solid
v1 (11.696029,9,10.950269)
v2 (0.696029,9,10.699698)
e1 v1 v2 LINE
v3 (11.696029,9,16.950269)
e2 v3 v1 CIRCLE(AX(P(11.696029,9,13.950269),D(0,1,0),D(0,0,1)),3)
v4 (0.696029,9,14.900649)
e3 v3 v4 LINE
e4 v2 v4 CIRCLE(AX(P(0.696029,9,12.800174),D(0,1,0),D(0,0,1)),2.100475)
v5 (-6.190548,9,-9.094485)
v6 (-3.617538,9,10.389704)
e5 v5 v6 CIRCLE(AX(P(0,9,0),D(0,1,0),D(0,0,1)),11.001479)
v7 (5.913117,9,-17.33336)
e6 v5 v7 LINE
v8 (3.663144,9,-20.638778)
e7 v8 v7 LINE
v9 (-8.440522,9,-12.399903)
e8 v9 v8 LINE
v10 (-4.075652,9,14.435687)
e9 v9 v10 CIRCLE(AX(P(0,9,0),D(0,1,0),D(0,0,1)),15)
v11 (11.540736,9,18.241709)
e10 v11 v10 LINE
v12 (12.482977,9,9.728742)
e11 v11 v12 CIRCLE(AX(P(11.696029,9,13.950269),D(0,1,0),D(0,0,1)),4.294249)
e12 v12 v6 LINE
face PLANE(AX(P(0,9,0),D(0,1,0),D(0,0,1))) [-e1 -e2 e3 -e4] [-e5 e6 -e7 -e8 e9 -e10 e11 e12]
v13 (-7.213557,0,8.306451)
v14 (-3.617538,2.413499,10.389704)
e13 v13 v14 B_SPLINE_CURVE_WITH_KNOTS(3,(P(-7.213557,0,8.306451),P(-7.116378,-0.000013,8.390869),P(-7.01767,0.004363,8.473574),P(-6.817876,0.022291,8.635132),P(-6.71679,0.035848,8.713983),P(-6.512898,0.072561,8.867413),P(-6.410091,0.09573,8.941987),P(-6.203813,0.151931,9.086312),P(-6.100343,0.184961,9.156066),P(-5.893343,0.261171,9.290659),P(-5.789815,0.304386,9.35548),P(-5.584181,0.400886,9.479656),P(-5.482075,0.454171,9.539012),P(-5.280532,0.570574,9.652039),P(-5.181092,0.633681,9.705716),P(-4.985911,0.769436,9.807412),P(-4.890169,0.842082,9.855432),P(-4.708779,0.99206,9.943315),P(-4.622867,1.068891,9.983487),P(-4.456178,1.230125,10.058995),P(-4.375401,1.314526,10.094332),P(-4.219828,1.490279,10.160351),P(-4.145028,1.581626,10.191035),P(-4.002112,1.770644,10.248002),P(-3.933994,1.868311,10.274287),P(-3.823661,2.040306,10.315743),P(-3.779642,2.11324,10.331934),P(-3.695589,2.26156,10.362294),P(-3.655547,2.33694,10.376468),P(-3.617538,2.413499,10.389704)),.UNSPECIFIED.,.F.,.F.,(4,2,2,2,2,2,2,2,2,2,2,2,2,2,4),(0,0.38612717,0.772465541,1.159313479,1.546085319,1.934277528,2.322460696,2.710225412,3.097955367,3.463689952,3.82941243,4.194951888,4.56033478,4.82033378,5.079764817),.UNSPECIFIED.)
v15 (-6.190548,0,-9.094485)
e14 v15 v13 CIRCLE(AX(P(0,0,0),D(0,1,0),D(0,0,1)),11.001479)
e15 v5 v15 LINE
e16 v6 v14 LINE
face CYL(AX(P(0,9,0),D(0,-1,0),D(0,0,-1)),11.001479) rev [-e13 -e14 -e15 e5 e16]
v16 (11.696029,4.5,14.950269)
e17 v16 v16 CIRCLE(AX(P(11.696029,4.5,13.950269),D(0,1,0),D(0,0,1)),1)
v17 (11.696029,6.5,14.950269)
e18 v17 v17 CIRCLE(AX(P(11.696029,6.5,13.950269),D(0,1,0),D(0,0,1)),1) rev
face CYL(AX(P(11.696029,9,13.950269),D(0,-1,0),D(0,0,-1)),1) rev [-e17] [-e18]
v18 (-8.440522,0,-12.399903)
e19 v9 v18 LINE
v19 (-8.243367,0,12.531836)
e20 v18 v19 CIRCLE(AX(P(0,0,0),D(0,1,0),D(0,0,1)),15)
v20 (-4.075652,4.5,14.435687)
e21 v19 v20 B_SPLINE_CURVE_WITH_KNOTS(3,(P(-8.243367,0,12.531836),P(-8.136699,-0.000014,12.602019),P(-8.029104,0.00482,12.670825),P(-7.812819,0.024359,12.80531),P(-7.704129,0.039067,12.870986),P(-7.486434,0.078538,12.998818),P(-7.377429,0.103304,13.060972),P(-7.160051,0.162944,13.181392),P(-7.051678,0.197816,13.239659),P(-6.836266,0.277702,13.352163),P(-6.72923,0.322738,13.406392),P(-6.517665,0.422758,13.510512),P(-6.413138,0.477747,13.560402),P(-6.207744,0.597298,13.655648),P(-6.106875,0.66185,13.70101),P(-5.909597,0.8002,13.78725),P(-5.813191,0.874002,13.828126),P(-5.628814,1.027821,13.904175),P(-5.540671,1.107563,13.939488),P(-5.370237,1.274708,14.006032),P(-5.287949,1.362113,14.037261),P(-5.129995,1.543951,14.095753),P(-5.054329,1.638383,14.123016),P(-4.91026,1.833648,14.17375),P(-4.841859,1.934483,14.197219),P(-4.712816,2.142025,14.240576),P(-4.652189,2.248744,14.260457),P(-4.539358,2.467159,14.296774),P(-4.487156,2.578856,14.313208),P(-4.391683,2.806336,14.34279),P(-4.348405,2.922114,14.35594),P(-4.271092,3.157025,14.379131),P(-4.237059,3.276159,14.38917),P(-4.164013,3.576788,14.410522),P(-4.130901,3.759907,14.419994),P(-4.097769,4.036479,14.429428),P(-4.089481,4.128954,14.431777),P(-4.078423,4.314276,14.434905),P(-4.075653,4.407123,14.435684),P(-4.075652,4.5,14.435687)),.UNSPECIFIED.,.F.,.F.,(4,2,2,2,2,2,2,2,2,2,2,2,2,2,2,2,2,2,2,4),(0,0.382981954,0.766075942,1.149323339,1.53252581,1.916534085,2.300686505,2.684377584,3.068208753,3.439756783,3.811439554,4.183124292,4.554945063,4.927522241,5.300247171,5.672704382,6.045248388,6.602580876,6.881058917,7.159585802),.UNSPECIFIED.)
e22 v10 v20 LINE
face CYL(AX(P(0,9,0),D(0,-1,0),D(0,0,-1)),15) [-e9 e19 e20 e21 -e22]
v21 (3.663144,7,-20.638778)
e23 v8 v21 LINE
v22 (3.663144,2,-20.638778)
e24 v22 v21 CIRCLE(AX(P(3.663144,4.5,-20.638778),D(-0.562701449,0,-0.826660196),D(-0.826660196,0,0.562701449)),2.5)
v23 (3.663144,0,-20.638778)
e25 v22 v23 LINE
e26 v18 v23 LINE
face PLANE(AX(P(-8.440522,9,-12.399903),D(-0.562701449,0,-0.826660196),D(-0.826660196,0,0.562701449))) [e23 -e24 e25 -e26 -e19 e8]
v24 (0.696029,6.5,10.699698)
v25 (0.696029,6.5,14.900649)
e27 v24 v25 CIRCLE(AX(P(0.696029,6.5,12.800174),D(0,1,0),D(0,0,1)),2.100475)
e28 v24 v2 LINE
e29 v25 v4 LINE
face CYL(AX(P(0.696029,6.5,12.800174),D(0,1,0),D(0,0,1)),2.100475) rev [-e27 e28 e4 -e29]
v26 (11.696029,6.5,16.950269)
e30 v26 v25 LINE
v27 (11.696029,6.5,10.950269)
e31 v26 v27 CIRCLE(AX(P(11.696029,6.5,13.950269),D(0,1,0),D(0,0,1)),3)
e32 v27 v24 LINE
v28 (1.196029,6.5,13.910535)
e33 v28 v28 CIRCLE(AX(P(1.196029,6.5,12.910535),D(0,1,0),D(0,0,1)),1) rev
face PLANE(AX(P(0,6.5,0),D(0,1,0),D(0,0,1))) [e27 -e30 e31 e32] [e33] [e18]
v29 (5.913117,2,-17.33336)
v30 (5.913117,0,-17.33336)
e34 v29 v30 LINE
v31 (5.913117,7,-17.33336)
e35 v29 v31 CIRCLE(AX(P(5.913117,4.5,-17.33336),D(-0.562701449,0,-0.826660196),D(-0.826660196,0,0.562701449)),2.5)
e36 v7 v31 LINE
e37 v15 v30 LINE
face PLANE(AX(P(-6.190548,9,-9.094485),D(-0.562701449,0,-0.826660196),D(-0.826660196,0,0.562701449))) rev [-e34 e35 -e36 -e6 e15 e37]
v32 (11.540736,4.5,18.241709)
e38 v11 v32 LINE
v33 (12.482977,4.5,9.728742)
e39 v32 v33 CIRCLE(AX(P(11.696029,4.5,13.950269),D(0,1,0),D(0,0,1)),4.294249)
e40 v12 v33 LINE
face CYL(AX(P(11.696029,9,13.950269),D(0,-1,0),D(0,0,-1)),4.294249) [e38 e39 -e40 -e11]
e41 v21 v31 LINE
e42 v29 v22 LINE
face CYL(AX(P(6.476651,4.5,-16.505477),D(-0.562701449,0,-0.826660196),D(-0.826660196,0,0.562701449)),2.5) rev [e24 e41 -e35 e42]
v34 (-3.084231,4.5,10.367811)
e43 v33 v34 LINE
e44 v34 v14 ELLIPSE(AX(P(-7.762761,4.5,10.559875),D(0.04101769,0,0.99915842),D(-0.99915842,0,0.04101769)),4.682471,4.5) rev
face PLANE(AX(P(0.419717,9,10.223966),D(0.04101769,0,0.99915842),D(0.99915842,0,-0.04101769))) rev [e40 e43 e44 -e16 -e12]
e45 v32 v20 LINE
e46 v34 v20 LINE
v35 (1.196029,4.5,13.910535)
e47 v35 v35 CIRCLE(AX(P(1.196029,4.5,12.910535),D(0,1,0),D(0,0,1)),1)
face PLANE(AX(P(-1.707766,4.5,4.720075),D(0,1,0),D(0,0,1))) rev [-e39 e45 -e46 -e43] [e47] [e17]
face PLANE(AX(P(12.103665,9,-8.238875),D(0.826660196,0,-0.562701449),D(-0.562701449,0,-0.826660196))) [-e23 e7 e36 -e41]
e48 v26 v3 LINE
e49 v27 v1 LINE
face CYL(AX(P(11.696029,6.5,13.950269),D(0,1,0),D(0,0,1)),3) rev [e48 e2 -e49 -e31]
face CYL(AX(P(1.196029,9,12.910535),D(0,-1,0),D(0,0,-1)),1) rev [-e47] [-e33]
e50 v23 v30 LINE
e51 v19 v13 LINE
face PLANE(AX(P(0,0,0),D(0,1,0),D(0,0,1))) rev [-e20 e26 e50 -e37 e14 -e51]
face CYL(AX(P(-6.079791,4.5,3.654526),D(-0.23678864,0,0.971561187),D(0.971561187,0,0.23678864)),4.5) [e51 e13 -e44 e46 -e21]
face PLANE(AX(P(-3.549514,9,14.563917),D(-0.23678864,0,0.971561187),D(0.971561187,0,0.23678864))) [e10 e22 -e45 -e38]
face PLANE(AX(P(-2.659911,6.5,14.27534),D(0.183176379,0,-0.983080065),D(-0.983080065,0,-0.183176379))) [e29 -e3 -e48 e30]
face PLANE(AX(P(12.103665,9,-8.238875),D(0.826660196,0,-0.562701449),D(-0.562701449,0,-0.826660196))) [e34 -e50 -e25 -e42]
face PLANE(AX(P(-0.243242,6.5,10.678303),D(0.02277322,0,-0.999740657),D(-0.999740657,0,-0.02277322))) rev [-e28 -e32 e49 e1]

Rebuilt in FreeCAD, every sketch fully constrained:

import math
import FreeCAD as App
import Part
import Sketcher

doc = App.newDocument("Part")
params = doc.addObject("Spreadsheet::Sheet", "Params")
for row, (alias, value) in enumerate([
    ("sketch1_diameter", "2 mm"),
    ("sketch1_radius", "15 mm"),
    ("pad1_length", "9 mm"),
    ("sketch2_diameter", "2 mm"),
    ("sketch2_radius", "3 mm"),
    ("pocket1_length", "2.5 mm"),
    ("sketch3_diameter", "5 mm"),
    ("pocket2_length", "5 mm"),
    ("sketch4_radius", "4.5 mm"),
    ("pocket3_length", "10 mm"),
], start=1):
    params.set(f"A{row}", alias)
    params.set(f"B{row}", "=" + value)
    params.setAlias(f"B{row}", alias)

body = doc.addObject("PartDesign::Body", "Body")

sketch1 = doc.addObject("Sketcher::SketchObject", "Sketch")
body.addObject(sketch1)
sketch1.AttachmentSupport = (doc.XZ_Plane, [""])
sketch1.MapMode = "FlatFace"
sketch1.addGeometry(Part.LineSegment(App.Vector(3.7, -20.6, 0), App.Vector(-8.4, -12.4, 0)), False)
sketch1.addGeometry(Part.ArcOfCircle(Part.Circle(App.Vector(0, 0, 0), App.Vector(0, 0, 1), 15), math.radians(106), math.radians(236)), False)
sketch1.addGeometry(Part.LineSegment(App.Vector(-4.1, 14.4, 0), App.Vector(-3, 14.7, 0)), False)
sketch1.addGeometry(Part.LineSegment(App.Vector(-3, 14.7, 0), App.Vector(11.5, 18.2, 0)), False)
sketch1.addGeometry(Part.ArcOfCircle(Part.Circle(App.Vector(11.7, 14, 0), App.Vector(0, 0, 1), 4.3), math.radians(-79), math.radians(92)), False)
sketch1.addGeometry(Part.LineSegment(App.Vector(12.5, 9.7, 0), App.Vector(-3.6, 10.4, 0)), False)
sketch1.addGeometry(Part.ArcOfCircle(Part.Circle(App.Vector(0, 0, 0), App.Vector(0, 0, 1), 11), math.radians(109), math.radians(236)), False)
sketch1.addGeometry(Part.LineSegment(App.Vector(-6.2, -9.1, 0), App.Vector(5.9, -17.3, 0)), False)
sketch1.addGeometry(Part.LineSegment(App.Vector(5.9, -17.3, 0), App.Vector(3.7, -20.6, 0)), False)
sketch1.addGeometry(Part.Circle(App.Vector(11.7, 14, 0), App.Vector(0, 0, 1), 1), False)
sketch1.addGeometry(Part.Circle(App.Vector(1.2, 12.9, 0), App.Vector(0, 0, 1), 1), False)
sketch1.addConstraint(Sketcher.Constraint("Tangent", 0, 2, 1, 2))
sketch1.addConstraint(Sketcher.Constraint("Coincident", 1, 1, 2, 1))
sketch1.addConstraint(Sketcher.Constraint("Coincident", 2, 2, 3, 1))
sketch1.addConstraint(Sketcher.Constraint("Coincident", 3, 2, 4, 2))
sketch1.addConstraint(Sketcher.Constraint("Coincident", 4, 1, 5, 1))
sketch1.addConstraint(Sketcher.Constraint("Coincident", 5, 2, 6, 1))
sketch1.addConstraint(Sketcher.Constraint("Tangent", 6, 2, 7, 1))
sketch1.addConstraint(Sketcher.Constraint("Coincident", 7, 2, 8, 1))
sketch1.addConstraint(Sketcher.Constraint("Coincident", 8, 2, 0, 1))
sketch1.addConstraint(Sketcher.Constraint("Coincident", 1, 3, -1, 1))
sketch1.addConstraint(Sketcher.Constraint("Coincident", 6, 3, -1, 1))
sketch1.addConstraint(Sketcher.Constraint("Coincident", 9, 3, 4, 3))
sketch1.addConstraint(Sketcher.Constraint("Equal", 9, 10))
sketch1.addConstraint(Sketcher.Constraint("Parallel", 2, 3))
sketch1.addConstraint(Sketcher.Constraint("Parallel", 0, 7))
sketch1.addConstraint(Sketcher.Constraint("Perpendicular", 7, 8))
sketch1.addConstraint(Sketcher.Constraint("Diameter", 9, 2.0))
sketch1.addConstraint(Sketcher.Constraint("Radius", 1, 15.0))
sketch1.addConstraint(Sketcher.Constraint("DistanceX", 10, 3, 4, 3, 10.5))
sketch1.addConstraint(Sketcher.Constraint("Radius", 4, 4.294249))
sketch1.addConstraint(Sketcher.Constraint("Radius", 6, 11.001479))
sketch1.addConstraint(Sketcher.Constraint("DistanceY", 7, 2, 4, 1, 27.062102))
sketch1.addConstraint(Sketcher.Constraint("DistanceX", -1, 1, 4, 3, 11.696029))
sketch1.addConstraint(Sketcher.Constraint("DistanceY", -1, 1, 4, 3, 13.950269))
sketch1.addConstraint(Sketcher.Constraint("DistanceX", 0, 2, -1, 1, 8.440522))
sketch1.addConstraint(Sketcher.Constraint("DistanceY", -1, 1, 3, 2, 18.241709))
sketch1.addConstraint(Sketcher.Constraint("DistanceY", 7, 2, -1, 1, 17.33336))
sketch1.addConstraint(Sketcher.Constraint("DistanceX", 1, 1, 10, 3, 5.271681))
sketch1.addConstraint(Sketcher.Constraint("DistanceY", 1, 1, 2, 2, 0.25646))
sketch1.addConstraint(Sketcher.Constraint("DistanceX", 5, 2, 2, 2, 0.594162))
sketch1.addConstraint(Sketcher.Constraint("DistanceY", 5, 2, 10, 3, 2.520831))
sketch1.setExpression("Constraints[16]", "Params.sketch1_diameter")
sketch1.setExpression("Constraints[17]", "Params.sketch1_radius")
pad1 = doc.addObject("PartDesign::Pad", "Pad")
body.addObject(pad1)
pad1.Profile = sketch1
pad1.setExpression("Length", "Params.pad1_length")
pad1.Reversed = True

sketch2 = doc.addObject("Sketcher::SketchObject", "Sketch001")
body.addObject(sketch2)
sketch2.AttachmentSupport = (doc.XZ_Plane, [""])
sketch2.MapMode = "FlatFace"
sketch2.AttachmentOffset = App.Placement(App.Vector(0, 0, -9), App.Rotation())
sketch2.addGeometry(Part.ArcOfCircle(Part.Circle(App.Vector(11.7, 13.95, 0), App.Vector(0, 0, 1), 3), math.radians(-90), math.radians(90)), False)
sketch2.addGeometry(Part.LineSegment(App.Vector(11.7, 10.95, 0), App.Vector(0.79, 10.7, 0)), False)
sketch2.addGeometry(Part.LineSegment(App.Vector(0.79, 10.7, 0), App.Vector(0.7, 10.7, 0)), False)
sketch2.addGeometry(Part.ArcOfCircle(Part.Circle(App.Vector(0.7, 12.8, 0), App.Vector(0, 0, 1), 2.1), math.radians(90), math.radians(270)), False)
sketch2.addGeometry(Part.LineSegment(App.Vector(0.7, 14.9, 0), App.Vector(11.7, 16.95, 0)), False)
sketch2.addGeometry(Part.Circle(App.Vector(11.7, 13.95, 0), App.Vector(0, 0, 1), 1), False)
sketch2.addGeometry(Part.Circle(App.Vector(1.2, 12.91, 0), App.Vector(0, 0, 1), 1), False)
sketch2.addConstraint(Sketcher.Constraint("Coincident", 0, 1, 1, 1))
sketch2.addConstraint(Sketcher.Constraint("Coincident", 1, 2, 2, 1))
sketch2.addConstraint(Sketcher.Constraint("Coincident", 2, 2, 3, 2))
sketch2.addConstraint(Sketcher.Constraint("Coincident", 3, 1, 4, 1))
sketch2.addConstraint(Sketcher.Constraint("Coincident", 4, 2, 0, 2))
sketch2.addConstraint(Sketcher.Constraint("Coincident", 5, 3, 0, 3))
sketch2.addConstraint(Sketcher.Constraint("Equal", 5, 6))
sketch2.addConstraint(Sketcher.Constraint("Parallel", 1, 2))
sketch2.addConstraint(Sketcher.Constraint("Vertical", 5, 3, 0, 1))
sketch2.addConstraint(Sketcher.Constraint("Vertical", 3, 3, 2, 2))
sketch2.addConstraint(Sketcher.Constraint("Vertical", 2, 2, 3, 1))
sketch2.addConstraint(Sketcher.Constraint("Vertical", 0, 1, 4, 2))
sketch2.addConstraint(Sketcher.Constraint("Diameter", 5, 2.0))
sketch2.addConstraint(Sketcher.Constraint("Radius", 0, 3.0))
sketch2.addConstraint(Sketcher.Constraint("DistanceX", 3, 3, 0, 3, 11.0))
sketch2.addConstraint(Sketcher.Constraint("DistanceX", 3, 3, 6, 3, 0.5))
sketch2.addConstraint(Sketcher.Constraint("Radius", 3, 2.100475))
sketch2.addConstraint(Sketcher.Constraint("DistanceY", -1, 1, 2, 2, 10.699698))
sketch2.addConstraint(Sketcher.Constraint("Distance", 2, 0.095669))
sketch2.addConstraint(Sketcher.Constraint("DistanceX", -1, 1, 0, 3, 11.696029))
sketch2.addConstraint(Sketcher.Constraint("DistanceY", -1, 1, 0, 3, 13.950269))
sketch2.addConstraint(Sketcher.Constraint("DistanceY", 3, 3, 6, 3, 0.110361))
sketch2.setExpression("Constraints[12]", "Params.sketch2_diameter")
sketch2.setExpression("Constraints[13]", "Params.sketch2_radius")
pocket1 = doc.addObject("PartDesign::Pocket", "Pocket")
body.addObject(pocket1)
pocket1.Profile = sketch2
pocket1.setExpression("Length", "Params.pocket1_length")
pocket1.Reversed = True

sketch3 = doc.addObject("Sketcher::SketchObject", "Sketch002")
body.addObject(sketch3)
sketch3.Placement = App.Placement(App.Vector(-8.440522, 0, -12.399903), App.Rotation(App.Vector(-0.826660196, 0, 0.562701449), App.Vector(0, 1, 0), App.Vector(-0.562701449, 0, -0.826660196), "ZXY"))
sketch3.addGeometry(Part.Circle(App.Vector(-14.6, 4.5, 0), App.Vector(0, 0, 1), 2.5), False)
sketch3.addConstraint(Sketcher.Constraint("Diameter", 0, 5.0))
sketch3.addConstraint(Sketcher.Constraint("DistanceY", -1, 1, 0, 3, 4.5))
sketch3.addConstraint(Sketcher.Constraint("DistanceX", 0, 3, -1, 1, 14.641645))
sketch3.setExpression("Constraints[0]", "Params.sketch3_diameter")
pocket2 = doc.addObject("PartDesign::Pocket", "Pocket001")
body.addObject(pocket2)
pocket2.Profile = sketch3
pocket2.setExpression("Length", "Params.pocket2_length")

sketch4 = doc.addObject("Sketcher::SketchObject", "Sketch003")
body.addObject(sketch4)
sketch4.Placement = App.Placement(App.Vector(-3.549514, 0, 14.563917), App.Rotation(App.Vector(0.971561187, 0, 0.23678864), App.Vector(0, 1, 0), App.Vector(-0.23678864, 0, 0.971561187), "ZXY"))
sketch4.addGeometry(Part.LineSegment(App.Vector(19, 4.5, 0), App.Vector(-0.5, 4.5, 0)), False)
sketch4.addGeometry(Part.ArcOfCircle(Part.Circle(App.Vector(-5, 4.5, 0), App.Vector(0, 0, 1), 4.5), math.radians(-90), math.radians(0)), False)
sketch4.addGeometry(Part.LineSegment(App.Vector(-5, 0, 0), App.Vector(19, 0, 0)), False)
sketch4.addGeometry(Part.LineSegment(App.Vector(19, 0, 0), App.Vector(19, 4.5, 0)), False)
sketch4.addConstraint(Sketcher.Constraint("Coincident", 0, 2, 1, 2))
sketch4.addConstraint(Sketcher.Constraint("Tangent", 1, 1, 2, 1))
sketch4.addConstraint(Sketcher.Constraint("Coincident", 2, 2, 3, 1))
sketch4.addConstraint(Sketcher.Constraint("Coincident", 3, 2, 0, 1))
sketch4.addConstraint(Sketcher.Constraint("Horizontal", 0))
sketch4.addConstraint(Sketcher.Constraint("Horizontal", 2))
sketch4.addConstraint(Sketcher.Constraint("Vertical", 3))
sketch4.addConstraint(Sketcher.Constraint("PointOnObject", 1, 1, -1))
sketch4.addConstraint(Sketcher.Constraint("Horizontal", 1, 3, 0, 2))
sketch4.addConstraint(Sketcher.Constraint("Radius", 1, 4.5))
sketch4.addConstraint(Sketcher.Constraint("DistanceX", 0, 2, 0, 1, 19.502461))
sketch4.addConstraint(Sketcher.Constraint("DistanceX", 1, 3, -1, 1, 5.041539))
sketch4.setExpression("Constraints[9]", "Params.sketch4_radius")
pocket3 = doc.addObject("PartDesign::Pocket", "Pocket002")
body.addObject(pocket3)
pocket3.Profile = sketch4
pocket3.setExpression("Length", "Params.pocket3_length")

doc.recompute()
